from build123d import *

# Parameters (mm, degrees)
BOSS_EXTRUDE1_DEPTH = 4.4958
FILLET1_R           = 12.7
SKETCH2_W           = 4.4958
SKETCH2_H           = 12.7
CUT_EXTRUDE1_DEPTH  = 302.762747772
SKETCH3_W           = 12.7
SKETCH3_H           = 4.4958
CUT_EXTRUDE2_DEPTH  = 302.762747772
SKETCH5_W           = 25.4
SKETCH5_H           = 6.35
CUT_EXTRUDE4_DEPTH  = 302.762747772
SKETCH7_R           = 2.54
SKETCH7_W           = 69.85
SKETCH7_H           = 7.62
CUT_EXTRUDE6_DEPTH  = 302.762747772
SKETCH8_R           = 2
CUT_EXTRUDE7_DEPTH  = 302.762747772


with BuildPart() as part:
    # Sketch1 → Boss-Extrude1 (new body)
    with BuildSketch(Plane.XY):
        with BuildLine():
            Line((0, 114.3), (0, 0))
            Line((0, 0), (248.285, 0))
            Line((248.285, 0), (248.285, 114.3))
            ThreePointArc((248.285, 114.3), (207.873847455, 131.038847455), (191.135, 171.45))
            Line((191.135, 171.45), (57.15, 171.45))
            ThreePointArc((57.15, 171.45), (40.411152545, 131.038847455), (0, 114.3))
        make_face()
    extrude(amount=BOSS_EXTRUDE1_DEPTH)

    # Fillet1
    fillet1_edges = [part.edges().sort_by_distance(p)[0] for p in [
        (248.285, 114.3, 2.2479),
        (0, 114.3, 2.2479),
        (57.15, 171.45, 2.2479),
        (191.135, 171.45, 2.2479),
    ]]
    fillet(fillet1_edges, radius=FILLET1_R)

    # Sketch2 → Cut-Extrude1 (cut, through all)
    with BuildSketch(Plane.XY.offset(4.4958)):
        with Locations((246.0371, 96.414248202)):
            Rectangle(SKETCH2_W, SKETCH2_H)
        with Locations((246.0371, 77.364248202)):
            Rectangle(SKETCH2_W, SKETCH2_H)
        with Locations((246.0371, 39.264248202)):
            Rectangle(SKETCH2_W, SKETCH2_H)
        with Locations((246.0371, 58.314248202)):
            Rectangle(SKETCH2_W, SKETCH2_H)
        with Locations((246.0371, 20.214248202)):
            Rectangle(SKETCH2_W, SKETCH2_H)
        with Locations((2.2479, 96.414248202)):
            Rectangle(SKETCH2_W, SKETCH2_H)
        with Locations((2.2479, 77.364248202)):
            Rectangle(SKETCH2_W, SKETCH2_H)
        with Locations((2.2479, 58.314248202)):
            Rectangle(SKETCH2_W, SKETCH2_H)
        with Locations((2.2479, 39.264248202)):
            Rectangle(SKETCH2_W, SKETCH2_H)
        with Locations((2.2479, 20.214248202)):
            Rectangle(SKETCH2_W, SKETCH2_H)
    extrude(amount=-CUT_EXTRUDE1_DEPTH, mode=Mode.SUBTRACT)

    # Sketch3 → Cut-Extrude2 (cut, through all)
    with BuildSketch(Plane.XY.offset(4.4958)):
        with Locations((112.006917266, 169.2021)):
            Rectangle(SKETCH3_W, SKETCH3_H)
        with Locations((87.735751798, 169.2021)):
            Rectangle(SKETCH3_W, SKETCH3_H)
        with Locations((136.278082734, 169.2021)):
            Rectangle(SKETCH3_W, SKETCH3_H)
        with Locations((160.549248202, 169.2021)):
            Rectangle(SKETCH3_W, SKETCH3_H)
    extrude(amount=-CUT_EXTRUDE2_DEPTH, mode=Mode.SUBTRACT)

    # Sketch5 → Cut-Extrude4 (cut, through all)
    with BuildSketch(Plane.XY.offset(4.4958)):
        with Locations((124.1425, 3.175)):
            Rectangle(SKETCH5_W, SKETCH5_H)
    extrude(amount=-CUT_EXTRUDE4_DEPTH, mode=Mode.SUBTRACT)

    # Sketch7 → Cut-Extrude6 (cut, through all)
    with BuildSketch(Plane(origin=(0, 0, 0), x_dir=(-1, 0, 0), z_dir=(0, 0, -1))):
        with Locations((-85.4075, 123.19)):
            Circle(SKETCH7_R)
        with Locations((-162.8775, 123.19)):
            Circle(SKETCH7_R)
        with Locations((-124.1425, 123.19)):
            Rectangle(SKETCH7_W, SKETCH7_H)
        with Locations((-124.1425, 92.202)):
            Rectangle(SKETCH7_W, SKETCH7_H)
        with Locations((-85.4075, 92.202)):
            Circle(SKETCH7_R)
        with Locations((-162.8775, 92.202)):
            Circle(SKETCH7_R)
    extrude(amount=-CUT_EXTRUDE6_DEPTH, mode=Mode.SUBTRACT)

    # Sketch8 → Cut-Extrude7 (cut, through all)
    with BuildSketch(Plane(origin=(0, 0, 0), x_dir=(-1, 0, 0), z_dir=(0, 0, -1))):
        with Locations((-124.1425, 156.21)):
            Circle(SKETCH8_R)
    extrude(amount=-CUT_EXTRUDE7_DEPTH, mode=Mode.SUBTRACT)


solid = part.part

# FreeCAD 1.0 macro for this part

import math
import FreeCAD as App
import Part
import Sketcher
Q = App.Units.Quantity


def edges_at(feature, points):
    """Names of the edges that pass closest to the given points."""
    edges = feature.Shape.Edges
    near = lambda p: min(range(len(edges)), key=lambda i: edges[i].distToShape(Part.Vertex(*p))[0])
    return sorted({f"Edge{near(p) + 1}" for p in points})

doc = App.newDocument("Part")
body = doc.addObject("PartDesign::Body", "Body")

# Sketch on XY plane
sketch1 = body.newObject("Sketcher::SketchObject", "Sketch")
sketch1.AttachmentSupport = (doc.getObject("XY_Plane"), [""])
sketch1.MapMode = "FlatFace"
sketch1.addGeometry([
    Part.LineSegment(App.Vector(0, 114, 0), App.Vector(0, 0, 0)),  # 0
    Part.LineSegment(App.Vector(0, 0, 0), App.Vector(248, 0, 0)),  # 1
    Part.LineSegment(App.Vector(248, 0, 0), App.Vector(248, 114, 0)),  # 2
    Part.ArcOfCircle(Part.Circle(App.Vector(248, 171, 0), App.Vector(0, 0, 1), 57), math.radians(180), math.radians(270)),  # 3
    Part.LineSegment(App.Vector(191, 171, 0), App.Vector(57, 171, 0)),  # 4
    Part.ArcOfCircle(Part.Circle(App.Vector(0, 171, 0), App.Vector(0, 0, 1), 57), math.radians(-90), math.radians(0)),  # 5
], False)
sketch1.addConstraint([
    Sketcher.Constraint("Coincident", 0, 2, 1, 1),
    Sketcher.Constraint("Coincident", 1, 2, 2, 1),
    Sketcher.Constraint("Coincident", 2, 2, 3, 2),
    Sketcher.Constraint("Coincident", 3, 1, 4, 1),
    Sketcher.Constraint("Coincident", 4, 2, 5, 2),
    Sketcher.Constraint("Coincident", 5, 1, 0, 1),
    Sketcher.Constraint("Vertical", 0),
    Sketcher.Constraint("Horizontal", 1),
    Sketcher.Constraint("Vertical", 2),
    Sketcher.Constraint("Horizontal", 4),
    Sketcher.Constraint("Coincident", 0, 2, -1, 1),
    Sketcher.Constraint("Equal", 3, 5),
    Sketcher.Constraint("PointOnObject", 5, 3, -2),
    Sketcher.Constraint("Horizontal", 3, 3, 5, 3),
    Sketcher.Constraint("Horizontal", 5, 3, 3, 1),
    Sketcher.Constraint("Vertical", 3, 3, 1, 2),
    Sketcher.Constraint("Radius", 3, Q("2.25 in")),
    Sketcher.Constraint("DistanceY", 0, 2, 0, 1, Q("4.5 in")),
    Sketcher.Constraint("DistanceX", 1, 1, 1, 2, Q("9.775 in")),
])
pad1 = body.newObject("PartDesign::Pad", "Pad")
pad1.Profile = sketch1
pad1.Length = Q("0.177 in")
doc.recompute()

fillet = body.newObject("PartDesign::Fillet", "Fillet")
fillet.Base = (pad1, edges_at(pad1, [
    (248.285, 114.3, 2.248),
    (0, 114.3, 2.248),
    (57.15, 171.45, 2.248),
    (191.135, 171.45, 2.248),
]))
fillet.Radius = Q("0.5 in")

# Sketch on XY plane
sketch2 = body.newObject("Sketcher::SketchObject", "Sketch001")
sketch2.AttachmentSupport = (doc.getObject("XY_Plane"), [""])
sketch2.MapMode = "FlatFace"
sketch2.AttachmentOffset = App.Placement(App.Vector(0, 0, 0.177 * 25.4), App.Rotation())
sketch2.addGeometry([
    Part.LineSegment(App.Vector(243.8, 102.8, 0), App.Vector(243.8, 90.1, 0)),  # 0
    Part.LineSegment(App.Vector(243.8, 90.1, 0), App.Vector(248.3, 90.1, 0)),  # 1
    Part.LineSegment(App.Vector(248.3, 90.1, 0), App.Vector(248.3, 102.8, 0)),  # 2
    Part.LineSegment(App.Vector(248.3, 102.8, 0), App.Vector(243.8, 102.8, 0)),  # 3
    Part.LineSegment(App.Vector(243.8, 83.7, 0), App.Vector(243.8, 71, 0)),  # 4
    Part.LineSegment(App.Vector(243.8, 71, 0), App.Vector(248.3, 71, 0)),  # 5
    Part.LineSegment(App.Vector(248.3, 71, 0), App.Vector(248.3, 83.7, 0)),  # 6
    Part.LineSegment(App.Vector(248.3, 83.7, 0), App.Vector(243.8, 83.7, 0)),  # 7
    Part.LineSegment(App.Vector(243.8, 45.6, 0), App.Vector(243.8, 32.9, 0)),  # 8
    Part.LineSegment(App.Vector(243.8, 32.9, 0), App.Vector(248.3, 32.9, 0)),  # 9
    Part.LineSegment(App.Vector(248.3, 32.9, 0), App.Vector(248.3, 45.6, 0)),  # 10
    Part.LineSegment(App.Vector(248.3, 45.6, 0), App.Vector(243.8, 45.6, 0)),  # 11
    Part.LineSegment(App.Vector(243.8, 64.7, 0), App.Vector(243.8, 52, 0)),  # 12
    Part.LineSegment(App.Vector(243.8, 52, 0), App.Vector(248.3, 52, 0)),  # 13
    Part.LineSegment(App.Vector(248.3, 52, 0), App.Vector(248.3, 64.7, 0)),  # 14
    Part.LineSegment(App.Vector(248.3, 64.7, 0), App.Vector(243.8, 64.7, 0)),  # 15
    Part.LineSegment(App.Vector(243.8, 26.6, 0), App.Vector(243.8, 13.9, 0)),  # 16
    Part.LineSegment(App.Vector(243.8, 13.9, 0), App.Vector(248.3, 13.9, 0)),  # 17
    Part.LineSegment(App.Vector(248.3, 13.9, 0), App.Vector(248.3, 26.6, 0)),  # 18
    Part.LineSegment(App.Vector(248.3, 26.6, 0), App.Vector(243.8, 26.6, 0)),  # 19
    Part.LineSegment(App.Vector(0, 102.8, 0), App.Vector(0, 90.1, 0)),  # 20
    Part.LineSegment(App.Vector(0, 90.1, 0), App.Vector(4.5, 90.1, 0)),  # 21
    Part.LineSegment(App.Vector(4.5, 90.1, 0), App.Vector(4.5, 102.8, 0)),  # 22
    Part.LineSegment(App.Vector(4.5, 102.8, 0), App.Vector(0, 102.8, 0)),  # 23
    Part.LineSegment(App.Vector(0, 83.7, 0), App.Vector(0, 71, 0)),  # 24
    Part.LineSegment(App.Vector(0, 71, 0), App.Vector(4.5, 71, 0)),  # 25
    Part.LineSegment(App.Vector(4.5, 71, 0), App.Vector(4.5, 83.7, 0)),  # 26
    Part.LineSegment(App.Vector(4.5, 83.7, 0), App.Vector(0, 83.7, 0)),  # 27
    Part.LineSegment(App.Vector(0, 64.7, 0), App.Vector(0, 52, 0)),  # 28
    Part.LineSegment(App.Vector(0, 52, 0), App.Vector(4.5, 52, 0)),  # 29
    Part.LineSegment(App.Vector(4.5, 52, 0), App.Vector(4.5, 64.7, 0)),  # 30
    Part.LineSegment(App.Vector(4.5, 64.7, 0), App.Vector(0, 64.7, 0)),  # 31
    Part.LineSegment(App.Vector(0, 45.6, 0), App.Vector(0, 32.9, 0)),  # 32
    Part.LineSegment(App.Vector(0, 32.9, 0), App.Vector(4.5, 32.9, 0)),  # 33
    Part.LineSegment(App.Vector(4.5, 32.9, 0), App.Vector(4.5, 45.6, 0)),  # 34
    Part.LineSegment(App.Vector(4.5, 45.6, 0), App.Vector(0, 45.6, 0)),  # 35
    Part.LineSegment(App.Vector(0, 26.6, 0), App.Vector(0, 13.9, 0)),  # 36
    Part.LineSegment(App.Vector(0, 13.9, 0), App.Vector(4.5, 13.9, 0)),  # 37
    Part.LineSegment(App.Vector(4.5, 13.9, 0), App.Vector(4.5, 26.6, 0)),  # 38
    Part.LineSegment(App.Vector(4.5, 26.6, 0), App.Vector(0, 26.6, 0)),  # 39
], False)
sketch2.addConstraint([
    Sketcher.Constraint("Coincident", 0, 2, 1, 1),
    Sketcher.Constraint("Coincident", 1, 2, 2, 1),
    Sketcher.Constraint("Coincident", 2, 2, 3, 1),
    Sketcher.Constraint("Coincident", 3, 2, 0, 1),
    Sketcher.Constraint("Coincident", 4, 2, 5, 1),
    Sketcher.Constraint("Coincident", 5, 2, 6, 1),
    Sketcher.Constraint("Coincident", 6, 2, 7, 1),
    Sketcher.Constraint("Coincident", 7, 2, 4, 1),
    Sketcher.Constraint("Coincident", 8, 2, 9, 1),
    Sketcher.Constraint("Coincident", 9, 2, 10, 1),
    Sketcher.Constraint("Coincident", 10, 2, 11, 1),
    Sketcher.Constraint("Coincident", 11, 2, 8, 1),
    Sketcher.Constraint("Coincident", 12, 2, 13, 1),
    Sketcher.Constraint("Coincident", 13, 2, 14, 1),
    Sketcher.Constraint("Coincident", 14, 2, 15, 1),
    Sketcher.Constraint("Coincident", 15, 2, 12, 1),
    Sketcher.Constraint("Coincident", 16, 2, 17, 1),
    Sketcher.Constraint("Coincident", 17, 2, 18, 1),
    Sketcher.Constraint("Coincident", 18, 2, 19, 1),
    Sketcher.Constraint("Coincident", 19, 2, 16, 1),
    Sketcher.Constraint("Coincident", 20, 2, 21, 1),
    Sketcher.Constraint("Coincident", 21, 2, 22, 1),
    Sketcher.Constraint("Coincident", 22, 2, 23, 1),
    Sketcher.Constraint("Coincident", 23, 2, 20, 1),
    Sketcher.Constraint("Coincident", 24, 2, 25, 1),
    Sketcher.Constraint("Coincident", 25, 2, 26, 1),
    Sketcher.Constraint("Coincident", 26, 2, 27, 1),
    Sketcher.Constraint("Coincident", 27, 2, 24, 1),
    Sketcher.Constraint("Coincident", 28, 2, 29, 1),
    Sketcher.Constraint("Coincident", 29, 2, 30, 1),
    Sketcher.Constraint("Coincident", 30, 2, 31, 1),
    Sketcher.Constraint("Coincident", 31, 2, 28, 1),
    Sketcher.Constraint("Coincident", 32, 2, 33, 1),
    Sketcher.Constraint("Coincident", 33, 2, 34, 1),
    Sketcher.Constraint("Coincident", 34, 2, 35, 1),
    Sketcher.Constraint("Coincident", 35, 2, 32, 1),
    Sketcher.Constraint("Coincident", 36, 2, 37, 1),
    Sketcher.Constraint("Coincident", 37, 2, 38, 1),
    Sketcher.Constraint("Coincident", 38, 2, 39, 1),
    Sketcher.Constraint("Coincident", 39, 2, 36, 1),
    Sketcher.Constraint("Vertical", 0),
    Sketcher.Constraint("Horizontal", 1),
    Sketcher.Constraint("Vertical", 2),
    Sketcher.Constraint("Horizontal", 3),
    Sketcher.Constraint("Vertical", 4),
    Sketcher.Constraint("Horizontal", 5),
    Sketcher.Constraint("Vertical", 6),
    Sketcher.Constraint("Horizontal", 7),
    Sketcher.Constraint("Vertical", 8),
    Sketcher.Constraint("Horizontal", 9),
    Sketcher.Constraint("Vertical", 10),
    Sketcher.Constraint("Horizontal", 11),
    Sketcher.Constraint("Vertical", 12),
    Sketcher.Constraint("Horizontal", 13),
    Sketcher.Constraint("Vertical", 14),
    Sketcher.Constraint("Horizontal", 15),
    Sketcher.Constraint("Vertical", 16),
    Sketcher.Constraint("Horizontal", 17),
    Sketcher.Constraint("Vertical", 18),
    Sketcher.Constraint("Horizontal", 19),
    Sketcher.Constraint("Vertical", 20),
    Sketcher.Constraint("Horizontal", 21),
    Sketcher.Constraint("Vertical", 22),
    Sketcher.Constraint("Horizontal", 23),
    Sketcher.Constraint("Vertical", 24),
    Sketcher.Constraint("Horizontal", 25),
    Sketcher.Constraint("Vertical", 26),
    Sketcher.Constraint("Horizontal", 27),
    Sketcher.Constraint("Vertical", 28),
    Sketcher.Constraint("Horizontal", 29),
    Sketcher.Constraint("Vertical", 30),
    Sketcher.Constraint("Horizontal", 31),
    Sketcher.Constraint("Vertical", 32),
    Sketcher.Constraint("Horizontal", 33),
    Sketcher.Constraint("Vertical", 34),
    Sketcher.Constraint("Horizontal", 35),
    Sketcher.Constraint("Vertical", 36),
    Sketcher.Constraint("Horizontal", 37),
    Sketcher.Constraint("Vertical", 38),
    Sketcher.Constraint("Horizontal", 39),
    Sketcher.Constraint("PointOnObject", 20, 2, -2),
    Sketcher.Constraint("PointOnObject", 24, 2, -2),
    Sketcher.Constraint("PointOnObject", 28, 2, -2),
    Sketcher.Constraint("PointOnObject", 32, 2, -2),
    Sketcher.Constraint("PointOnObject", 36, 2, -2),
    Sketcher.Constraint("Horizontal", 1, 2, 20, 2),
    Sketcher.Constraint("Horizontal", 3, 2, 22, 2),
    Sketcher.Constraint("Horizontal", 5, 2, 24, 2),
    Sketcher.Constraint("Horizontal", 7, 2, 26, 2),
    Sketcher.Constraint("Horizontal", 13, 2, 28, 2),
    Sketcher.Constraint("Horizontal", 15, 2, 30, 2),
    Sketcher.Constraint("Horizontal", 9, 2, 32, 2),
    Sketcher.Constraint("Horizontal", 11, 2, 34, 2),
    Sketcher.Constraint("Horizontal", 17, 2, 36, 2),
    Sketcher.Constraint("Horizontal", 19, 2, 38, 2),
    Sketcher.Constraint("Vertical", 3, 2, 4, 2),
    Sketcher.Constraint("Vertical", 2, 2, 5, 2),
    Sketcher.Constraint("Vertical", 7, 2, 8, 2),
    Sketcher.Constraint("Vertical", 6, 2, 9, 2),
    Sketcher.Constraint("Vertical", 11, 2, 12, 2),
    Sketcher.Constraint("Vertical", 10, 2, 13, 2),
    Sketcher.Constraint("Vertical", 15, 2, 16, 2),
    Sketcher.Constraint("Vertical", 14, 2, 17, 2),
    Sketcher.Constraint("Vertical", 22, 2, 25, 2),
    Sketcher.Constraint("Vertical", 26, 2, 29, 2),
    Sketcher.Constraint("Vertical", 30, 2, 33, 2),
    Sketcher.Constraint("Vertical", 34, 2, 37, 2),
    Sketcher.Constraint("Equal", 19, 21),
    Sketcher.Constraint("Equal", 2, 4),
    Sketcher.Constraint("Equal", 6, 8),
    Sketcher.Constraint("Equal", 10, 12),
    Sketcher.Constraint("Equal", 14, 16),
    Sketcher.Constraint("DistanceY", 0, 2, 0, 1, Q("0.5 in")),
    Sketcher.Constraint("DistanceY", 8, 2, 7, 2, Q("2 in")),
    Sketcher.Constraint("DistanceY", 15, 2, 20, 2, Q("1 in")),
    Sketcher.Constraint("DistanceY", 16, 2, 12, 2, Q("1.5 in")),
    Sketcher.Constraint("DistanceX", 1, 1, 1, 2, Q("0.177 in")),
    Sketcher.Constraint("DistanceY", 4, 2, 0, 2, Q("0.75 in")),
    Sketcher.Constraint("DistanceX", -1, 1, 0, 2, Q("9.598 in")),
    Sketcher.Constraint("DistanceY", -1, 1, 0, 2, Q("90.064248 mm")),
])
pocket1 = body.newObject("PartDesign::Pocket", "Pocket")
pocket1.Profile = sketch2
pocket1.Type = "ThroughAll"

# Sketch on XY plane
sketch3 = body.newObject("Sketcher::SketchObject", "Sketch002")
sketch3.AttachmentSupport = (doc.getObject("XY_Plane"), [""])
sketch3.MapMode = "FlatFace"
sketch3.AttachmentOffset = App.Placement(App.Vector(0, 0, 0.177 * 25.4), App.Rotation())
sketch3.addGeometry([
    Part.LineSegment(App.Vector(105.7, 171.4, 0), App.Vector(105.7, 167, 0)),  # 0
    Part.LineSegment(App.Vector(105.7, 167, 0), App.Vector(118.4, 167, 0)),  # 1
    Part.LineSegment(App.Vector(118.4, 167, 0), App.Vector(118.4, 171.4, 0)),  # 2
    Part.LineSegment(App.Vector(118.4, 171.4, 0), App.Vector(105.7, 171.4, 0)),  # 3
    Part.LineSegment(App.Vector(81.4, 171.4, 0), App.Vector(81.4, 167, 0)),  # 4
    Part.LineSegment(App.Vector(81.4, 167, 0), App.Vector(94.1, 167, 0)),  # 5
    Part.LineSegment(App.Vector(94.1, 167, 0), App.Vector(94.1, 171.4, 0)),  # 6
    Part.LineSegment(App.Vector(94.1, 171.4, 0), App.Vector(81.4, 171.4, 0)),  # 7
    Part.LineSegment(App.Vector(129.9, 171.4, 0), App.Vector(129.9, 167, 0)),  # 8
    Part.LineSegment(App.Vector(129.9, 167, 0), App.Vector(142.6, 167, 0)),  # 9
    Part.LineSegment(App.Vector(142.6, 167, 0), App.Vector(142.6, 171.4, 0)),  # 10
    Part.LineSegment(App.Vector(142.6, 171.4, 0), App.Vector(129.9, 171.4, 0)),  # 11
    Part.LineSegment(App.Vector(154.2, 171.4, 0), App.Vector(154.2, 167, 0)),  # 12
    Part.LineSegment(App.Vector(154.2, 167, 0), App.Vector(166.9, 167, 0)),  # 13
    Part.LineSegment(App.Vector(166.9, 167, 0), App.Vector(166.9, 171.4, 0)),  # 14
    Part.LineSegment(App.Vector(166.9, 171.4, 0), App.Vector(154.2, 171.4, 0)),  # 15
], False)
sketch3.addConstraint([
    Sketcher.Constraint("Coincident", 0, 2, 1, 1),
    Sketcher.Constraint("Coincident", 1, 2, 2, 1),
    Sketcher.Constraint("Coincident", 2, 2, 3, 1),
    Sketcher.Constraint("Coincident", 3, 2, 0, 1),
    Sketcher.Constraint("Coincident", 4, 2, 5, 1),
    Sketcher.Constraint("Coincident", 5, 2, 6, 1),
    Sketcher.Constraint("Coincident", 6, 2, 7, 1),
    Sketcher.Constraint("Coincident", 7, 2, 4, 1),
    Sketcher.Constraint("Coincident", 8, 2, 9, 1),
    Sketcher.Constraint("Coincident", 9, 2, 10, 1),
    Sketcher.Constraint("Coincident", 10, 2, 11, 1),
    Sketcher.Constraint("Coincident", 11, 2, 8, 1),
    Sketcher.Constraint("Coincident", 12, 2, 13, 1),
    Sketcher.Constraint("Coincident", 13, 2, 14, 1),
    Sketcher.Constraint("Coincident", 14, 2, 15, 1),
    Sketcher.Constraint("Coincident", 15, 2, 12, 1),
    Sketcher.Constraint("Vertical", 0),
    Sketcher.Constraint("Horizontal", 1),
    Sketcher.Constraint("Vertical", 2),
    Sketcher.Constraint("Horizontal", 3),
    Sketcher.Constraint("Vertical", 4),
    Sketcher.Constraint("Horizontal", 5),
    Sketcher.Constraint("Vertical", 6),
    Sketcher.Constraint("Horizontal", 7),
    Sketcher.Constraint("Vertical", 8),
    Sketcher.Constraint("Horizontal", 9),
    Sketcher.Constraint("Vertical", 10),
    Sketcher.Constraint("Horizontal", 11),
    Sketcher.Constraint("Vertical", 12),
    Sketcher.Constraint("Horizontal", 13),
    Sketcher.Constraint("Vertical", 14),
    Sketcher.Constraint("Horizontal", 15),
    Sketcher.Constraint("Horizontal", 1, 2, 4, 2),
    Sketcher.Constraint("Horizontal", 3, 2, 6, 2),
    Sketcher.Constraint("Horizontal", 5, 2, 8, 2),
    Sketcher.Constraint("Horizontal", 7, 2, 10, 2),
    Sketcher.Constraint("Horizontal", 9, 2, 12, 2),
    Sketcher.Constraint("Horizontal", 11, 2, 14, 2),
    Sketcher.Constraint("Equal", 3, 5),
    Sketcher.Constraint("Equal", 7, 9),
    Sketcher.Constraint("Equal", 11, 13),
    Sketcher.Constraint("DistanceX", 1, 1, 1, 2, Q("0.5 in")),
    Sketcher.Constraint("DistanceY", 0, 2, 0, 1, Q("0.177 in")),
    Sketcher.Constraint("DistanceY", -1, 1, 2, 2, Q("6.75 in")),
    Sketcher.Constraint("DistanceX", -1, 1, 4, 2, Q("81.385752 mm")),
    Sketcher.Constraint("DistanceX", -1, 1, 12, 2, Q("154.199248 mm")),
    Sketcher.Constraint("DistanceX", 5, 2, 8, 2, Q("35.842331 mm")),
    Sketcher.Constraint("DistanceX", 1, 2, 12, 2, Q("35.842331 mm")),
])
pocket2 = body.newObject("PartDesign::Pocket", "Pocket001")
pocket2.Profile = sketch3
pocket2.Type = "ThroughAll"

# Sketch on XY plane
sketch4 = body.newObject("Sketcher::SketchObject", "Sketch003")
sketch4.AttachmentSupport = (doc.getObject("XY_Plane"), [""])
sketch4.MapMode = "FlatFace"
sketch4.AttachmentOffset = App.Placement(App.Vector(0, 0, 0.177 * 25.4), App.Rotation())
sketch4.addGeometry([
    Part.LineSegment(App.Vector(111, 6, 0), App.Vector(111, 0, 0)),
    Part.LineSegment(App.Vector(111, 0, 0), App.Vector(137, 0, 0)),
    Part.LineSegment(App.Vector(137, 0, 0), App.Vector(137, 6, 0)),
    Part.LineSegment(App.Vector(137, 6, 0), App.Vector(111, 6, 0)),
], False)
sketch4.addConstraint([
    Sketcher.Constraint("Coincident", 0, 2, 1, 1),
    Sketcher.Constraint("Coincident", 1, 2, 2, 1),
    Sketcher.Constraint("Coincident", 2, 2, 3, 1),
    Sketcher.Constraint("Coincident", 3, 2, 0, 1),
    Sketcher.Constraint("Vertical", 0),
    Sketcher.Constraint("Horizontal", 1),
    Sketcher.Constraint("Vertical", 2),
    Sketcher.Constraint("Horizontal", 3),
    Sketcher.Constraint("PointOnObject", 0, 2, -1),
    Sketcher.Constraint("DistanceX", 1, 1, 1, 2, Q("1 in")),
    Sketcher.Constraint("DistanceY", 0, 2, 0, 1, Q("0.25 in")),
    Sketcher.Constraint("DistanceX", -1, 1, 0, 2, Q("4.3875 in")),
])
pocket3 = body.newObject("PartDesign::Pocket", "Pocket002")
pocket3.Profile = sketch4
pocket3.Type = "ThroughAll"

# Sketch on XY plane
sketch5 = body.newObject("Sketcher::SketchObject", "Sketch004")
sketch5.AttachmentSupport = (doc.getObject("XY_Plane"), [""])
sketch5.MapMode = "FlatFace"
sketch5.addGeometry([
    Part.Circle(App.Vector(85.4, 123.2, 0), App.Vector(0, 0, 1), 2.5),  # 0
    Part.Circle(App.Vector(162.9, 123.2, 0), App.Vector(0, 0, 1), 2.5),  # 1
    Part.LineSegment(App.Vector(159.1, 127, 0), App.Vector(159.1, 119.4, 0)),  # 2
    Part.LineSegment(App.Vector(159.1, 119.4, 0), App.Vector(89.2, 119.4, 0)),  # 3
    Part.LineSegment(App.Vector(89.2, 119.4, 0), App.Vector(89.2, 127, 0)),  # 4
    Part.LineSegment(App.Vector(89.2, 127, 0), App.Vector(159.1, 127, 0)),  # 5
    Part.LineSegment(App.Vector(159.1, 96, 0), App.Vector(159.1, 88.4, 0)),  # 6
    Part.LineSegment(App.Vector(159.1, 88.4, 0), App.Vector(89.2, 88.4, 0)),  # 7
    Part.LineSegment(App.Vector(89.2, 88.4, 0), App.Vector(89.2, 96, 0)),  # 8
    Part.LineSegment(App.Vector(89.2, 96, 0), App.Vector(159.1, 96, 0)),  # 9
    Part.Circle(App.Vector(85.4, 92.2, 0), App.Vector(0, 0, 1), 2.5),  # 10
    Part.Circle(App.Vector(162.9, 92.2, 0), App.Vector(0, 0, 1), 2.5),  # 11
], False)
sketch5.addConstraint([
    Sketcher.Constraint("Coincident", 2, 2, 3, 1),
    Sketcher.Constraint("Coincident", 3, 2, 4, 1),
    Sketcher.Constraint("Coincident", 4, 2, 5, 1),
    Sketcher.Constraint("Coincident", 5, 2, 2, 1),
    Sketcher.Constraint("Coincident", 6, 2, 7, 1),
    Sketcher.Constraint("Coincident", 7, 2, 8, 1),
    Sketcher.Constraint("Coincident", 8, 2, 9, 1),
    Sketcher.Constraint("Coincident", 9, 2, 6, 1),
    Sketcher.Constraint("Vertical", 2),
    Sketcher.Constraint("Horizontal", 3),
    Sketcher.Constraint("Vertical", 4),
    Sketcher.Constraint("Horizontal", 5),
    Sketcher.Constraint("Vertical", 6),
    Sketcher.Constraint("Horizontal", 7),
    Sketcher.Constraint("Vertical", 8),
    Sketcher.Constraint("Horizontal", 9),
    Sketcher.Constraint("Equal", 0, 1),
    Sketcher.Constraint("Equal", 1, 10),
    Sketcher.Constraint("Equal", 10, 11),
    Sketcher.Constraint("Horizontal", 0, 3, 1, 3),
    Sketcher.Constraint("Horizontal", 10, 3, 11, 3),
    Sketcher.Constraint("Vertical", 0, 3, 10, 3),
    Sketcher.Constraint("Vertical", 1, 3, 11, 3),
    Sketcher.Constraint("Vertical", 5, 2, 6, 2),
    Sketcher.Constraint("Vertical", 4, 2, 7, 2),
    Sketcher.Constraint("Equal", 4, 6),
    Sketcher.Constraint("Diameter", 0, Q("0.2 in")),
    Sketcher.Constraint("DistanceY", 2, 2, 2, 1, Q("0.3 in")),
    Sketcher.Constraint("DistanceY", -1, 1, 4, 2, Q("5 in")),
    Sketcher.Constraint("DistanceX", 3, 2, 3, 1, Q("2.75 in")),
    Sketcher.Constraint("DistanceX", 0, 3, 2, 2, Q("2.9 in")),
    Sketcher.Constraint("DistanceX", 3, 2, 1, 3, Q("2.9 in")),
    Sketcher.Constraint("DistanceY", -1, 1, 0, 3, Q("4.85 in")),
    Sketcher.Constraint("DistanceY", -1, 1, 10, 3, Q("3.63 in")),
    Sketcher.Constraint("DistanceY", -1, 1, 6, 2, Q("3.48 in")),
    Sketcher.Constraint("DistanceX", -1, 1, 0, 3, Q("3.3625 in")),
])
pocket4 = body.newObject("PartDesign::Pocket", "Pocket003")
pocket4.Profile = sketch5
pocket4.Type = "ThroughAll"
pocket4.Reversed = True

# Sketch on XY plane
sketch6 = body.newObject("Sketcher::SketchObject", "Sketch005")
sketch6.AttachmentSupport = (doc.getObject("XY_Plane"), [""])
sketch6.MapMode = "FlatFace"
sketch6.addGeometry(Part.Circle(App.Vector(124.1, 156.2, 0), App.Vector(0, 0, 1), 2), False)
sketch6.addConstraint([
    Sketcher.Constraint("Diameter", 0, Q("4 mm")),
    Sketcher.Constraint("DistanceY", -1, 1, 0, 3, Q("6.15 in")),
    Sketcher.Constraint("DistanceX", -1, 1, 0, 3, Q("4.8875 in")),
])
pocket5 = body.newObject("PartDesign::Pocket", "Pocket004")
pocket5.Profile = sketch6
pocket5.Type = "ThroughAll"
pocket5.Reversed = True

doc.recompute()
